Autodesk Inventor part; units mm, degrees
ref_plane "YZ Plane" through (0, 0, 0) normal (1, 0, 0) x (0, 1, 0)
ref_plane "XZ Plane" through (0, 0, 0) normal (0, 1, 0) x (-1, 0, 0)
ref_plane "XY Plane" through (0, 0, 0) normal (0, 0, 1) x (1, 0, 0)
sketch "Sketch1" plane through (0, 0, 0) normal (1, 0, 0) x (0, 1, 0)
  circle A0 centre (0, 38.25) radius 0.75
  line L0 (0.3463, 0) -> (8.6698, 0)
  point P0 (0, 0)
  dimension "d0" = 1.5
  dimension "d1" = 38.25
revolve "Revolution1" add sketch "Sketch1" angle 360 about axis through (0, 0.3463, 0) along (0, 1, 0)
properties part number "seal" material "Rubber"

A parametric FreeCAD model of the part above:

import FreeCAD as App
import Part
import Sketcher
from FreeCAD import Vector
Q = App.Units.Quantity

doc = App.newDocument("Part")
body = doc.addObject("PartDesign::Body", "Body")

# Sketch on YZ plane
sketch1 = body.newObject("Sketcher::SketchObject", "Sketch")
sketch1.AttachmentSupport = (doc.getObject("YZ_Plane"), [""])
sketch1.MapMode = "FlatFace"
sketch1.addGeometry(Part.Circle(Vector(0, 38.2, 0), Vector(0, 0, 1), 0.8), False)
sketch1.addConstraint([
    Sketcher.Constraint("PointOnObject", 0, 3, -2),
    Sketcher.Constraint("Diameter", 0, Q("1.5 mm")),
    Sketcher.Constraint("DistanceY", -1, 1, 0, 3, Q("38.25 mm")),
])
revolution = body.newObject("PartDesign::Revolution", "Revolution")
revolution.Profile = sketch1
revolution.ReferenceAxis = (sketch1, ["H_Axis"])
revolution.Angle = 360

doc.recompute()
